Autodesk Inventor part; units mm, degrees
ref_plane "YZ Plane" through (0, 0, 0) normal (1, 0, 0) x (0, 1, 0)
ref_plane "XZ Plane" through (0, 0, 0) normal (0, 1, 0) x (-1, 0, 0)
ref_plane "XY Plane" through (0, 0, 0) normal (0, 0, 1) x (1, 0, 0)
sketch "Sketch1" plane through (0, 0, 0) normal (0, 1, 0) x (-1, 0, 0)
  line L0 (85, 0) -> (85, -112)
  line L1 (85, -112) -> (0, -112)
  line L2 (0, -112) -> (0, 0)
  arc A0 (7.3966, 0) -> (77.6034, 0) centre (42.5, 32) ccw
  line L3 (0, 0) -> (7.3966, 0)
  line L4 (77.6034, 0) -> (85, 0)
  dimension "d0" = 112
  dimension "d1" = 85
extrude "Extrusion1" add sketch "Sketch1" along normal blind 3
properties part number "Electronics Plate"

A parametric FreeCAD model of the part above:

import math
import FreeCAD as App
import Part
import Sketcher
Q = App.Units.Quantity

doc = App.newDocument("Part")
body = doc.addObject("PartDesign::Body", "Body")

# Sketch on XZ plane
sketch1 = body.newObject("Sketcher::SketchObject", "Sketch")
sketch1.AttachmentSupport = (doc.getObject("XZ_Plane"), [""])
sketch1.MapMode = "FlatFace"
sketch1.addGeometry(Part.LineSegment(App.Vector(-85, -112, 0), App.Vector(-85, 0, 0)), False)
sketch1.addGeometry(Part.LineSegment(App.Vector(-85, 0, 0), App.Vector(-77.6034, 0, 0)), False)
sketch1.addGeometry(Part.ArcOfCircle(Part.Circle(App.Vector(-42.5, 32, 0), App.Vector(0, 0, 1), 47.499986), math.radians(-137.64793), math.radians(-42.35207)), False)
sketch1.addGeometry(Part.LineSegment(App.Vector(-7.3966, 0, 0), App.Vector(0, 0, 0)), False)
sketch1.addGeometry(Part.LineSegment(App.Vector(0, 0, 0), App.Vector(0, -112, 0)), False)
sketch1.addGeometry(Part.LineSegment(App.Vector(0, -112, 0), App.Vector(-85, -112, 0)), False)
sketch1.addConstraint(Sketcher.Constraint("Coincident", 0, 2, 1, 1))
sketch1.addConstraint(Sketcher.Constraint("Coincident", 1, 2, 2, 1))
sketch1.addConstraint(Sketcher.Constraint("Coincident", 2, 2, 3, 1))
sketch1.addConstraint(Sketcher.Constraint("Coincident", 3, 2, 4, 1))
sketch1.addConstraint(Sketcher.Constraint("Coincident", 4, 2, 5, 1))
sketch1.addConstraint(Sketcher.Constraint("Coincident", 5, 2, 0, 1))
sketch1.addConstraint(Sketcher.Constraint("Vertical", 0))
sketch1.addConstraint(Sketcher.Constraint("Horizontal", 1))
sketch1.addConstraint(Sketcher.Constraint("Horizontal", 3))
sketch1.addConstraint(Sketcher.Constraint("Vertical", 4))
sketch1.addConstraint(Sketcher.Constraint("Horizontal", 5))
sketch1.addConstraint(Sketcher.Constraint("Coincident", 3, 2, -1, 1))
sketch1.addConstraint(Sketcher.Constraint("PointOnObject", 0, 2, -1))
sketch1.addConstraint(Sketcher.Constraint("Equal", 1, 3))
sketch1.addConstraint(Sketcher.Constraint("DistanceX", 5, 2, 5, 1, Q("85 mm")))
sketch1.addConstraint(Sketcher.Constraint("DistanceY", 0, 1, 0, 2, Q("112 mm")))
sketch1.addConstraint(Sketcher.Constraint("Radius", 2, Q("47.5 mm")))
sketch1.addConstraint(Sketcher.Constraint("DistanceY", -1, 1, 2, 3, Q("32 mm")))
pad1 = body.newObject("PartDesign::Pad", "Pad")
pad1.Profile = sketch1
pad1.Length = 3
pad1.Reversed = True

doc.recompute()
